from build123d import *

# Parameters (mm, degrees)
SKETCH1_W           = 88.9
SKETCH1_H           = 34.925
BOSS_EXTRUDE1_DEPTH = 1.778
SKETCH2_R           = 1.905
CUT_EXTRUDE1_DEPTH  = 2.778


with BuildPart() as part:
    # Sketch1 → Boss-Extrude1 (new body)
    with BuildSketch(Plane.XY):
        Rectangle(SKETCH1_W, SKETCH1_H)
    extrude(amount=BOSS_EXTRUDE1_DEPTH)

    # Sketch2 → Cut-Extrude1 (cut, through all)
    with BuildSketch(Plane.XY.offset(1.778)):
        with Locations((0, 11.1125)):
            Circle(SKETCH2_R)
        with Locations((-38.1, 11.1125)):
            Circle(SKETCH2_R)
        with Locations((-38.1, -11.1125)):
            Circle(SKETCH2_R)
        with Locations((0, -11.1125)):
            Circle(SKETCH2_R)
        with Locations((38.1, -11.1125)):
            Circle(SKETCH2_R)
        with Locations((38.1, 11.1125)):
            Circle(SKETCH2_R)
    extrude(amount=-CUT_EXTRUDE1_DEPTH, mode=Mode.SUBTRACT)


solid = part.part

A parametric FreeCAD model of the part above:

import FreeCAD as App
import Part
import Sketcher
from FreeCAD import Vector
Q = App.Units.Quantity

doc = App.newDocument("Part")
body = doc.addObject("PartDesign::Body", "Body")

sketch1 = body.newObject("Sketcher::SketchObject", "Sketch")
sketch1.AttachmentSupport = (doc.getObject("XY_Plane"), [""])
sketch1.MapMode = "FlatFace"
sketch1.addGeometry([
    Part.LineSegment(Vector(-44, 17, 0), Vector(-44, -17, 0)),
    Part.LineSegment(Vector(-44, -17, 0), Vector(44, -17, 0)),
    Part.LineSegment(Vector(44, -17, 0), Vector(44, 17, 0)),
    Part.LineSegment(Vector(44, 17, 0), Vector(-44, 17, 0)),
], False)
sketch1.addConstraint([
    Sketcher.Constraint("Coincident", 0, 2, 1, 1),
    Sketcher.Constraint("Coincident", 1, 2, 2, 1),
    Sketcher.Constraint("Coincident", 2, 2, 3, 1),
    Sketcher.Constraint("Coincident", 3, 2, 0, 1),
    Sketcher.Constraint("Vertical", 0),
    Sketcher.Constraint("Horizontal", 1),
    Sketcher.Constraint("Vertical", 2),
    Sketcher.Constraint("Horizontal", 3),
    Sketcher.Constraint("Symmetric", 0, 2, 2, 2, -1, 1),
    Sketcher.Constraint("DistanceX", 1, 1, 1, 2, Q("3.5 in")),
    Sketcher.Constraint("DistanceY", 0, 2, 0, 1, Q("1.375 in")),
])
pad1 = body.newObject("PartDesign::Pad", "Pad")
pad1.Profile = sketch1
pad1.Length = Q("0.07 in")

sketch2 = body.newObject("Sketcher::SketchObject", "Sketch001")
sketch2.AttachmentSupport = (doc.getObject("XY_Plane"), [""])
sketch2.MapMode = "FlatFace"
sketch2.AttachmentOffset = App.Placement(Vector(0, 0, 0.07 * 25.4), App.Rotation())
sketch2.addGeometry([
    Part.Circle(Vector(0, 11.1, 0), Vector(0, 0, 1), 1.9),
    Part.Circle(Vector(-38.1, 11.1, 0), Vector(0, 0, 1), 1.9),
    Part.Circle(Vector(-38.1, -11.1, 0), Vector(0, 0, 1), 1.9),
    Part.Circle(Vector(0, -11.1, 0), Vector(0, 0, 1), 1.9),
    Part.Circle(Vector(38.1, -11.1, 0), Vector(0, 0, 1), 1.9),
    Part.Circle(Vector(38.1, 11.1, 0), Vector(0, 0, 1), 1.9),
], False)
sketch2.addConstraint([
    Sketcher.Constraint("Equal", 0, 1),
    Sketcher.Constraint("Equal", 1, 2),
    Sketcher.Constraint("Equal", 2, 3),
    Sketcher.Constraint("Equal", 3, 4),
    Sketcher.Constraint("Equal", 4, 5),
    Sketcher.Constraint("Symmetric", 0, 3, 3, 3, -1, 1),
    Sketcher.Constraint("Symmetric", 1, 3, 4, 3, -1, 1),
    Sketcher.Constraint("Symmetric", 2, 3, 5, 3, -1, 1),
    Sketcher.Constraint("Symmetric", 2, 3, 4, 3, -2),
    Sketcher.Constraint("PointOnObject", 0, 3, -2),
    Sketcher.Constraint("Horizontal", 0, 3, 1, 3),
    Sketcher.Constraint("Diameter", 0, Q("0.15 in")),
    Sketcher.Constraint("DistanceX", 2, 3, 4, 3, Q("3 in")),
    Sketcher.Constraint("DistanceY", -1, 1, 0, 3, Q("0.4375 in")),
])
pocket1 = body.newObject("PartDesign::Pocket", "Pocket")
pocket1.Profile = sketch2
pocket1.Type = "ThroughAll"

doc.recompute()
